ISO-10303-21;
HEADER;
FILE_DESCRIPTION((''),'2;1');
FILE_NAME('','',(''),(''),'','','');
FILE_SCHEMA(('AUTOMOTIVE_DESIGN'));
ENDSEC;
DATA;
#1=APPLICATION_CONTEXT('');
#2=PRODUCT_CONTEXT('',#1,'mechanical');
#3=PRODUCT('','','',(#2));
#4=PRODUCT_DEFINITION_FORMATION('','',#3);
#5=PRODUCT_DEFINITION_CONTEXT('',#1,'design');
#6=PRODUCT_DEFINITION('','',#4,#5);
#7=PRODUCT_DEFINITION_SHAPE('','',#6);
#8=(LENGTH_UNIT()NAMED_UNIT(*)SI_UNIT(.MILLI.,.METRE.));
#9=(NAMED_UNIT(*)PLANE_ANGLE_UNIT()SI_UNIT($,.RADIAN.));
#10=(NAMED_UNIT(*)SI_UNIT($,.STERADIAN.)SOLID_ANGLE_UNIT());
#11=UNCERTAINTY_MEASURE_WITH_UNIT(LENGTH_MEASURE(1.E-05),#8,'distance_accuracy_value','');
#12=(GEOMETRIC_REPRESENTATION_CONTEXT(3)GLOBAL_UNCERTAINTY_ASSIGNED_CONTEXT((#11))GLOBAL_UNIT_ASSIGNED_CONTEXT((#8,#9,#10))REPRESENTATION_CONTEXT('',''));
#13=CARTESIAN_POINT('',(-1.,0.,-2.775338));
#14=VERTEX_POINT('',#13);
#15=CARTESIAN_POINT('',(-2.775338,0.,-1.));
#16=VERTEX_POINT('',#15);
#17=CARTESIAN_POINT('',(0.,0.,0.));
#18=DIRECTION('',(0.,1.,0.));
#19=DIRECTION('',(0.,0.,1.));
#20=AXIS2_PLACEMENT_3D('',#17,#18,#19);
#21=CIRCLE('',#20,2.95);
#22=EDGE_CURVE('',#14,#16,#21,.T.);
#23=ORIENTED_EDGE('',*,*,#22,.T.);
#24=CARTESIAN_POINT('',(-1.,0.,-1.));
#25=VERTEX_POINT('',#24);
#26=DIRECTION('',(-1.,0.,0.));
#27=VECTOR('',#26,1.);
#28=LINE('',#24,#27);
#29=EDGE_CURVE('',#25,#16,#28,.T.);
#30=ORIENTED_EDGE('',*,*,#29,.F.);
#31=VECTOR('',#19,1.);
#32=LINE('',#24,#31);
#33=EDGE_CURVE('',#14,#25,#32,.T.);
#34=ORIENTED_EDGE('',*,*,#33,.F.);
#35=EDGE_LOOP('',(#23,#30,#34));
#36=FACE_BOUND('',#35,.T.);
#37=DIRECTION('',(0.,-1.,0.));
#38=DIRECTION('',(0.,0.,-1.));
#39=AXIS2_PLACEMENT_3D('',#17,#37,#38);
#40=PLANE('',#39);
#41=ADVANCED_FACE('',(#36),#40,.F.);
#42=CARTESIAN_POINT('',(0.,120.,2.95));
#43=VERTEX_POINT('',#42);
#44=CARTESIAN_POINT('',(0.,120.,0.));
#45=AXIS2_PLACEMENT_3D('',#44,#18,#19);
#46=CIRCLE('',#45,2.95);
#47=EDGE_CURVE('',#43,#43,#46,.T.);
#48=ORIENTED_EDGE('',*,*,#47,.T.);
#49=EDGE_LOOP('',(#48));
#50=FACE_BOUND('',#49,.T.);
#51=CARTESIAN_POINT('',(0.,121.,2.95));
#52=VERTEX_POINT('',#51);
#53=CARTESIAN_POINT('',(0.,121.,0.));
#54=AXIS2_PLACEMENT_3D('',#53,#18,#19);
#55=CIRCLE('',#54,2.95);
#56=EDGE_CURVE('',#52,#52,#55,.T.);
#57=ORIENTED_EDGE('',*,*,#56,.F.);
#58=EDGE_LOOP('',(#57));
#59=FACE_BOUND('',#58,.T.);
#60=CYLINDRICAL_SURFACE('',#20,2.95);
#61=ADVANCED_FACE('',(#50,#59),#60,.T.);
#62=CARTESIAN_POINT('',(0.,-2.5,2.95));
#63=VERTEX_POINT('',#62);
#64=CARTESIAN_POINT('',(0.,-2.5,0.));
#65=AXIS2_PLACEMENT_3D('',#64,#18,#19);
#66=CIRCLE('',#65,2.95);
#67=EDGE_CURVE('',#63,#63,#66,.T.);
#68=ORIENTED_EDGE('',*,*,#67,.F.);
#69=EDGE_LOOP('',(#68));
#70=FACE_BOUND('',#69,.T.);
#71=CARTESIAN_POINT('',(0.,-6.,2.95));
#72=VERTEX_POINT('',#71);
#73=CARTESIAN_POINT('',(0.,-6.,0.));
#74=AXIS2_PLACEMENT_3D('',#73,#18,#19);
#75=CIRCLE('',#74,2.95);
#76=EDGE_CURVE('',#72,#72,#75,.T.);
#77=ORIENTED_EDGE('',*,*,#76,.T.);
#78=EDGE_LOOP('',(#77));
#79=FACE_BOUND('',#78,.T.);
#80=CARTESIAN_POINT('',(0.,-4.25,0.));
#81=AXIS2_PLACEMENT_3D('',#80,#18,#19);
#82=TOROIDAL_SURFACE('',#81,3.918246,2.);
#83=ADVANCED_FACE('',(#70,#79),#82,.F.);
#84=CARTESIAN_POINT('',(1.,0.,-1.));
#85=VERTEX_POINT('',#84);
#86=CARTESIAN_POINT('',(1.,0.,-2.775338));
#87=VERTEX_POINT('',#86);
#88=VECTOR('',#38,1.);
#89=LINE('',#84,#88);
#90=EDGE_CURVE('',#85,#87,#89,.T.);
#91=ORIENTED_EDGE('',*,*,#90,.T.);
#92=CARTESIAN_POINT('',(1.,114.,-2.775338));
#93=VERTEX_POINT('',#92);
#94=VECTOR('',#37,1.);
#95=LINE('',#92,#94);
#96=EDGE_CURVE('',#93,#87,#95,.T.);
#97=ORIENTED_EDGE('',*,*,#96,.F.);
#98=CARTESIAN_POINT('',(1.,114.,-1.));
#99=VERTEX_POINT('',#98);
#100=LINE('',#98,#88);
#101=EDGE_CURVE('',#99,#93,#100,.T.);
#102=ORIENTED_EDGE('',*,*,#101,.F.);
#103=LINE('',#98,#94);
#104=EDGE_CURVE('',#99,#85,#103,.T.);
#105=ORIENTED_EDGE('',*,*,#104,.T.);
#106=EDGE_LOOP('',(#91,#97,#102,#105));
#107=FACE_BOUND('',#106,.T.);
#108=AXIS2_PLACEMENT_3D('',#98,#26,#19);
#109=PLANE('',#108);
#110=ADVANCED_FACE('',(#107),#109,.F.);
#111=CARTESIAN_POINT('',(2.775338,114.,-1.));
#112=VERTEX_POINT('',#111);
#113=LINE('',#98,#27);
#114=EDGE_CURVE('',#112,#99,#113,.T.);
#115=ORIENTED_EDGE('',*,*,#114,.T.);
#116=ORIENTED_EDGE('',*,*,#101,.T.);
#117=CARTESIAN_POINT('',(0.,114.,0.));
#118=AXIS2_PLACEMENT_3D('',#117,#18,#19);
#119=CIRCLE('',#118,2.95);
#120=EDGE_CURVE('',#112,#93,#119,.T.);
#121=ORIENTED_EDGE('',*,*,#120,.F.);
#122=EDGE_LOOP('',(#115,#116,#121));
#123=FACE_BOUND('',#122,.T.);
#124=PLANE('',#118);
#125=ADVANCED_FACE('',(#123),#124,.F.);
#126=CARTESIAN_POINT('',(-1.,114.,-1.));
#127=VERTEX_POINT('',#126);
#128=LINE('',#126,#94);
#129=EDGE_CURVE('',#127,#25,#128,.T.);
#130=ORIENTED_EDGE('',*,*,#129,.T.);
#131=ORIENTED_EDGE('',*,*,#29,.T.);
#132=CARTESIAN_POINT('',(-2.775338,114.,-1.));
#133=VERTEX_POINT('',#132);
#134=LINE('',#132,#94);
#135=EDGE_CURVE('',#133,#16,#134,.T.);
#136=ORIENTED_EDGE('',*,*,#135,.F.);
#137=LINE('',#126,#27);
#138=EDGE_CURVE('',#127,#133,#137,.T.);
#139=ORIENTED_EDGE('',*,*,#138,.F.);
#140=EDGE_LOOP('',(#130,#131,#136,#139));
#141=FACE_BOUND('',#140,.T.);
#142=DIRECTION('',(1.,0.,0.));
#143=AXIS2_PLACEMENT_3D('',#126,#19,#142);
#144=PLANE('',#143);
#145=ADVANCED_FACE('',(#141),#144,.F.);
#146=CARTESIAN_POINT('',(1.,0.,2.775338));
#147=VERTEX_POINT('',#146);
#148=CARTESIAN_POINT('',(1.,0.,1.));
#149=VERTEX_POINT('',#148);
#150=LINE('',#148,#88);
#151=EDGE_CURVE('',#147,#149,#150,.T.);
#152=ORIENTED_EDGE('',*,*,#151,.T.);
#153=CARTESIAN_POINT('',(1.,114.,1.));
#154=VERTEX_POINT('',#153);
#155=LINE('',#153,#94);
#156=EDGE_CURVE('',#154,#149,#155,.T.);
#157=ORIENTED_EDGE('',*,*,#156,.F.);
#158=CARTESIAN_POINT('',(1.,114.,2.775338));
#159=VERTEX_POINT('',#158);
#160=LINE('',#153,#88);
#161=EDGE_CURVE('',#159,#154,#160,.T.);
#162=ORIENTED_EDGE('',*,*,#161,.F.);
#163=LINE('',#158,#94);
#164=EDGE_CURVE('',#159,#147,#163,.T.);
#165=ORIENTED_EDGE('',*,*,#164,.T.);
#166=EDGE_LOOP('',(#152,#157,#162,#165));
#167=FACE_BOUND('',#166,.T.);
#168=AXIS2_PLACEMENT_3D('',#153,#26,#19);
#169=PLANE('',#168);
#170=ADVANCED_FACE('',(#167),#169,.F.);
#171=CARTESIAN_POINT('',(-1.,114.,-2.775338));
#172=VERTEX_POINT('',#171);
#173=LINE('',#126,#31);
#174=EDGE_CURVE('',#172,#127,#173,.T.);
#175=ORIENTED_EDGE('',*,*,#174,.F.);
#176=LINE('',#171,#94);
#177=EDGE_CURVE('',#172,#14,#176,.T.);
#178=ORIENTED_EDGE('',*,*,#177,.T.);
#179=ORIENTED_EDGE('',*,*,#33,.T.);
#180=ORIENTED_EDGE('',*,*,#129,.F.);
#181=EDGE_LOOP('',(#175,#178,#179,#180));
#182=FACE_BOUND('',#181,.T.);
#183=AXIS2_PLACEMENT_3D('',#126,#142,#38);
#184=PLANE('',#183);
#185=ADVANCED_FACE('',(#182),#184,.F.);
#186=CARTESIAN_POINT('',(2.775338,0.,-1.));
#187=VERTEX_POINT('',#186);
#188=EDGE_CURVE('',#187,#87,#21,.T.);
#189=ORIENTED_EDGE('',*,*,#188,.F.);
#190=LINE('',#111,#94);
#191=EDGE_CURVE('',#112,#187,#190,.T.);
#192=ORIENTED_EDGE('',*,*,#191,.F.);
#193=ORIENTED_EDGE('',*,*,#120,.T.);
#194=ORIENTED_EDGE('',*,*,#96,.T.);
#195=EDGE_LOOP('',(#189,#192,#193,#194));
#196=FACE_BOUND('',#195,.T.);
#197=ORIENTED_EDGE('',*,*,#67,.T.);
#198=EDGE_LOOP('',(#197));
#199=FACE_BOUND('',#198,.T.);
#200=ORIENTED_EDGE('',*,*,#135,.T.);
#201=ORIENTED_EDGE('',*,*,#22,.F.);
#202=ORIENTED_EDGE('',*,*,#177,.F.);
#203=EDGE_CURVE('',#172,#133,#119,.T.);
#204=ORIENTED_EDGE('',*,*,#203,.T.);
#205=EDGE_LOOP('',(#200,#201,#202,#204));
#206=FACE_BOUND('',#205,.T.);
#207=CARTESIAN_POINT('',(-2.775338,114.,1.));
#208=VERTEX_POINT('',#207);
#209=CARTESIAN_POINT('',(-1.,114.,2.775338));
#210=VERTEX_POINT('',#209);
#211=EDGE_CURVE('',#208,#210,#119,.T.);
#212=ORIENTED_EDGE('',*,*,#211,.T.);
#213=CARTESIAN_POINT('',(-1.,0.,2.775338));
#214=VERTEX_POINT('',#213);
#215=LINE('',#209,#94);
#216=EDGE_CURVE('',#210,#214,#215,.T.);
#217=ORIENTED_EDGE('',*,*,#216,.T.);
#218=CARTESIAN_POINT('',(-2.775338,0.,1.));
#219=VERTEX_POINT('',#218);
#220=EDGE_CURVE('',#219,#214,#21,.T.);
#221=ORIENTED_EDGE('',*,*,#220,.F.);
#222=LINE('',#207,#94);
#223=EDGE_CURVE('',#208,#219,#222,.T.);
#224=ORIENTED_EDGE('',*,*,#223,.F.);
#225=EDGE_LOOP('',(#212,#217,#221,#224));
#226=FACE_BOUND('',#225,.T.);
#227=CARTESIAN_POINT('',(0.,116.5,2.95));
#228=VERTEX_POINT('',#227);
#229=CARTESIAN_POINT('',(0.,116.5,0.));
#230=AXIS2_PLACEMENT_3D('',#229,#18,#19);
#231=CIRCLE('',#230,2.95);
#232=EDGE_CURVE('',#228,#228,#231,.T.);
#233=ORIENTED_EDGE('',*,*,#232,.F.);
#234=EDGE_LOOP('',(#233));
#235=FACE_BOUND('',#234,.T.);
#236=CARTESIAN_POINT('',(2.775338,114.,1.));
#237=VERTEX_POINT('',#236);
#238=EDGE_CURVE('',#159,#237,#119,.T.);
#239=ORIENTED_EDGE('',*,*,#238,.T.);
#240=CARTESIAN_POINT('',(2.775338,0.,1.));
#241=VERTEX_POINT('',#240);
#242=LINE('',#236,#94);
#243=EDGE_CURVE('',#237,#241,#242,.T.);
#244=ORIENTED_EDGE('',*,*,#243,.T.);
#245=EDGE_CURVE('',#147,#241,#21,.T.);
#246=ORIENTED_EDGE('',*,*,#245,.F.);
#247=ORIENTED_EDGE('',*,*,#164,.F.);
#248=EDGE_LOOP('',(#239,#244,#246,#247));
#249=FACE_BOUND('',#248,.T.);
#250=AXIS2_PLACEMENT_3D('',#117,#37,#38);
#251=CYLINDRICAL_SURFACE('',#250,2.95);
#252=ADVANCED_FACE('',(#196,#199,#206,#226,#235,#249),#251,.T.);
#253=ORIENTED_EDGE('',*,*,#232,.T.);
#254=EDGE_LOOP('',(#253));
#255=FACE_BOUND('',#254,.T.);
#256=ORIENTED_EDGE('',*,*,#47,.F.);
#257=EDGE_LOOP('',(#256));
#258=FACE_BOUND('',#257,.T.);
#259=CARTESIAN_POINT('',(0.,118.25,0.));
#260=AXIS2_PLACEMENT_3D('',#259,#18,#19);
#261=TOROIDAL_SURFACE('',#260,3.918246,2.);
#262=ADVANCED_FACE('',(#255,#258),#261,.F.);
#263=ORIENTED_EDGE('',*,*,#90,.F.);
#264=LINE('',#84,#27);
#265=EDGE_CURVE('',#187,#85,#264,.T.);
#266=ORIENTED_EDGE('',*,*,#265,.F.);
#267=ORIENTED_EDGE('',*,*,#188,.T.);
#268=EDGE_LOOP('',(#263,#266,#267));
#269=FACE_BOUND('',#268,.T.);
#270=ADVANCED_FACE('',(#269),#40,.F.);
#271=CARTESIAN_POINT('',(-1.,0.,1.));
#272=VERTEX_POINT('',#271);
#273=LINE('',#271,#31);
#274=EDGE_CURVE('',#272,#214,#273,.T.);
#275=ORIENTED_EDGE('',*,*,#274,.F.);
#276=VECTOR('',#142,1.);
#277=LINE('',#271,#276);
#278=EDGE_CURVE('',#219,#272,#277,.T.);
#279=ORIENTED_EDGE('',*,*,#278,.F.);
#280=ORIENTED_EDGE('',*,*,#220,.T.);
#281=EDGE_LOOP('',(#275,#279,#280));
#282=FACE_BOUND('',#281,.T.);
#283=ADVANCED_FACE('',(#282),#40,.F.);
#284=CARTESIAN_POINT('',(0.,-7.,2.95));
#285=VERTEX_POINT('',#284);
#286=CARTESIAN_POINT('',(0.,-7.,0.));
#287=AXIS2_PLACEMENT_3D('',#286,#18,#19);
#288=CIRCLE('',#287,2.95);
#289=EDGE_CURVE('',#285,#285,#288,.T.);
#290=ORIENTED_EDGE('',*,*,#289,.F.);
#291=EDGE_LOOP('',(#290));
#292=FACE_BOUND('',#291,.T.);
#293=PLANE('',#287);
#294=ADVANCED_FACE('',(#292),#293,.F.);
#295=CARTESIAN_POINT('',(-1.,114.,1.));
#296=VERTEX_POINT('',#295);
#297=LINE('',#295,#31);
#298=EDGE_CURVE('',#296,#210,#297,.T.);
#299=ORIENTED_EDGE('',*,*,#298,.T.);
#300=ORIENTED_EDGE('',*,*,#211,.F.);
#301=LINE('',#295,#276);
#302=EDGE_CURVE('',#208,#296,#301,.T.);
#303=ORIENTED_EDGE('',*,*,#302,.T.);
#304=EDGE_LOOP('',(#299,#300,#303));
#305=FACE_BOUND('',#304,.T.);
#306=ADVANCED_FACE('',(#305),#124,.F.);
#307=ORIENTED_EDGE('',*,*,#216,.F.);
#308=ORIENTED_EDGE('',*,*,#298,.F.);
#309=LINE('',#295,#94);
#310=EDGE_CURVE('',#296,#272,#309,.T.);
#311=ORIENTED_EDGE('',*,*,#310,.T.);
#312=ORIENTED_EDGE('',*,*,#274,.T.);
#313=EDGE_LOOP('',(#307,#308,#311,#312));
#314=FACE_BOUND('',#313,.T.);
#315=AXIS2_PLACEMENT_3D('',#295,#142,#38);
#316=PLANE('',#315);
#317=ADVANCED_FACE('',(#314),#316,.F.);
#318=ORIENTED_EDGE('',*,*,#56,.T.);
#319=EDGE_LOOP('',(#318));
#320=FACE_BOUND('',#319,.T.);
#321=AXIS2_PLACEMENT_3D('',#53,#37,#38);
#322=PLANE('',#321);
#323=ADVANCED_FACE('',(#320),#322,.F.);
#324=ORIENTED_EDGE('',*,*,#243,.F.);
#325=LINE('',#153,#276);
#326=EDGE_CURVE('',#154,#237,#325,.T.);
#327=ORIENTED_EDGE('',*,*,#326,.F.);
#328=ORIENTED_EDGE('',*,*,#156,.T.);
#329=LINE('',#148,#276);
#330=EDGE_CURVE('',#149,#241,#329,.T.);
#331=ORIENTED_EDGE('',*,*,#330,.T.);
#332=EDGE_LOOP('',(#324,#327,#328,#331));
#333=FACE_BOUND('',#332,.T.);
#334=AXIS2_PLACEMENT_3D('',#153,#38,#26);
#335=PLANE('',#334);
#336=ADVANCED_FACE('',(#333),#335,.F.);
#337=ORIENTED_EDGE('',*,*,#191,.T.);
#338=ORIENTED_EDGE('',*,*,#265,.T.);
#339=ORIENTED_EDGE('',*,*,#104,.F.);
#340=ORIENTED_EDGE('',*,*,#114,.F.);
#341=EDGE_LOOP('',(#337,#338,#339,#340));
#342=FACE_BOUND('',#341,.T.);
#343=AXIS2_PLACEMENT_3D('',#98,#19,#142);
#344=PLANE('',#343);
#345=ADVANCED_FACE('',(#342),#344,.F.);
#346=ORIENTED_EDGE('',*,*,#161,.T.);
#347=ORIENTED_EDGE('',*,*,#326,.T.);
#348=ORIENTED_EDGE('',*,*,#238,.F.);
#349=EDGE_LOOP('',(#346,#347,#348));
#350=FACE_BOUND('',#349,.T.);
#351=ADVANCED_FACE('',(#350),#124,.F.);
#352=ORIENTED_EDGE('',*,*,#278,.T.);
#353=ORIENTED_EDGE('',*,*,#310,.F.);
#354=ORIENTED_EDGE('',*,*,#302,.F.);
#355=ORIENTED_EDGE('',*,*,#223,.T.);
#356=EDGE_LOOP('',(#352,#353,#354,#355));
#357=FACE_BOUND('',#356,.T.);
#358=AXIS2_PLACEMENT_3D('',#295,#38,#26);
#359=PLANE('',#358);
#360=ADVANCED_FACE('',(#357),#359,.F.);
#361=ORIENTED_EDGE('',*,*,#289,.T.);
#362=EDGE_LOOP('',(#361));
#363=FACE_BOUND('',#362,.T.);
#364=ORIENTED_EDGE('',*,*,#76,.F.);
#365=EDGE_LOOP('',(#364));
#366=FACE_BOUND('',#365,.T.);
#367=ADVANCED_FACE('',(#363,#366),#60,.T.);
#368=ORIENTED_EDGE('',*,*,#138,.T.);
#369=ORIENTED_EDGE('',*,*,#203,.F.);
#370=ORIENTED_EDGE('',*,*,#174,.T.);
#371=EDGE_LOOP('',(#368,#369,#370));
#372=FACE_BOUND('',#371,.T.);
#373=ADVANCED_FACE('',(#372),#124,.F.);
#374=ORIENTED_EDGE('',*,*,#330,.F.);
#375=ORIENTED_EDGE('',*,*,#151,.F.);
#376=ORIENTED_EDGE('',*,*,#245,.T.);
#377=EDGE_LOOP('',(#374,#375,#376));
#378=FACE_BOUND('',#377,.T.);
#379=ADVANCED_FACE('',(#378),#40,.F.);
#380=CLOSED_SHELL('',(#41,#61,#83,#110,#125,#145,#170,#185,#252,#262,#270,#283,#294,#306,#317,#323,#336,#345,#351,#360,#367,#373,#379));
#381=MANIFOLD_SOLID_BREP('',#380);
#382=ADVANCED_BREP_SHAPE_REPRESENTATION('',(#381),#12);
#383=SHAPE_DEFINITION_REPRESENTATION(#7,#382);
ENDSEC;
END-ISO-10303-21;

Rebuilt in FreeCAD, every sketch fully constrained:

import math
import FreeCAD as App
import Part
import Sketcher
from FreeCAD import Vector
Q = App.Units.Quantity

doc = App.newDocument("Part")
body = doc.addObject("PartDesign::Body", "Body")

sketch1 = body.newObject("Sketcher::SketchObject", "Sketch")
sketch1.AttachmentSupport = (doc.getObject("XZ_Plane"), [""])
sketch1.MapMode = "FlatFace"
sketch1.addGeometry([
    Part.LineSegment(Vector(1, -1, 0), Vector(1, -2.8, 0)),
    Part.ArcOfCircle(Part.Circle(Vector(0, 0, 0), Vector(0, 0, 1), 3), math.radians(-110), math.radians(-70)),
    Part.LineSegment(Vector(-1, -2.8, 0), Vector(-1, -1, 0)),
    Part.LineSegment(Vector(-1, -1, 0), Vector(-2.8, -1, 0)),
    Part.ArcOfCircle(Part.Circle(Vector(0, 0, 0), Vector(0, 0, 1), 3), math.radians(160), math.radians(200)),
    Part.LineSegment(Vector(-2.8, 1, 0), Vector(-1, 1, 0)),
    Part.LineSegment(Vector(-1, 1, 0), Vector(-1, 2.8, 0)),
    Part.ArcOfCircle(Part.Circle(Vector(0, 0, 0), Vector(0, 0, 1), 3), math.radians(70), math.radians(110)),
    Part.LineSegment(Vector(1, 2.8, 0), Vector(1, 1, 0)),
    Part.LineSegment(Vector(1, 1, 0), Vector(2.8, 1, 0)),
    Part.ArcOfCircle(Part.Circle(Vector(0, 0, 0), Vector(0, 0, 1), 3), math.radians(-20), math.radians(20)),
    Part.LineSegment(Vector(2.8, -1, 0), Vector(1, -1, 0)),
], False)
sketch1.addConstraint([
    Sketcher.Constraint("Coincident", 0, 2, 1, 2),
    Sketcher.Constraint("Coincident", 1, 1, 2, 1),
    Sketcher.Constraint("Coincident", 2, 2, 3, 1),
    Sketcher.Constraint("Coincident", 3, 2, 4, 2),
    Sketcher.Constraint("Coincident", 4, 1, 5, 1),
    Sketcher.Constraint("Coincident", 5, 2, 6, 1),
    Sketcher.Constraint("Coincident", 6, 2, 7, 2),
    Sketcher.Constraint("Coincident", 7, 1, 8, 1),
    Sketcher.Constraint("Coincident", 8, 2, 9, 1),
    Sketcher.Constraint("Coincident", 9, 2, 10, 2),
    Sketcher.Constraint("Coincident", 10, 1, 11, 1),
    Sketcher.Constraint("Coincident", 11, 2, 0, 1),
    Sketcher.Constraint("Vertical", 0),
    Sketcher.Constraint("Vertical", 2),
    Sketcher.Constraint("Horizontal", 3),
    Sketcher.Constraint("Horizontal", 5),
    Sketcher.Constraint("Vertical", 6),
    Sketcher.Constraint("Vertical", 8),
    Sketcher.Constraint("Horizontal", 9),
    Sketcher.Constraint("Horizontal", 11),
    Sketcher.Constraint("Coincident", 1, 3, -1, 1),
    Sketcher.Constraint("Coincident", 4, 3, -1, 1),
    Sketcher.Constraint("Coincident", 7, 3, -1, 1),
    Sketcher.Constraint("Coincident", 10, 3, -1, 1),
    Sketcher.Constraint("Equal", 1, 4),
    Sketcher.Constraint("Equal", 4, 7),
    Sketcher.Constraint("Equal", 7, 10),
    Sketcher.Constraint("Symmetric", 2, 2, 8, 2, -1, 1),
    Sketcher.Constraint("Symmetric", 5, 2, 11, 2, -1, 1),
    Sketcher.Constraint("Symmetric", 5, 2, 8, 2, -2),
    Sketcher.Constraint("Equal", 11, 0),
    Sketcher.Constraint("DistanceX", -1, 1, 0, 2, Q("1 mm")),
    Sketcher.Constraint("Radius", 1, Q("2.950003 mm")),
])
pad1 = body.newObject("PartDesign::Pad", "Pad")
pad1.Profile = sketch1
pad1.Length = 114
pad1.Reversed = True

sketch2 = body.newObject("Sketcher::SketchObject", "Sketch001")
sketch2.AttachmentSupport = (doc.getObject("YZ_Plane"), [""])
sketch2.MapMode = "FlatFace"
sketch2.addGeometry([
    Part.LineSegment(Vector(121, 0, 0), Vector(114, 0, 0)),
    Part.LineSegment(Vector(114, 0, 0), Vector(114, -3, 0)),
    Part.LineSegment(Vector(114, -3, 0), Vector(116.5, -3, 0)),
    Part.ArcOfCircle(Part.Circle(Vector(118.2, -3.9, 0), Vector(0, 0, 1), 2), math.radians(29), math.radians(151)),
    Part.LineSegment(Vector(120, -3, 0), Vector(121, -3, 0)),
    Part.LineSegment(Vector(121, -3, 0), Vector(121, 0, 0)),
    Part.LineSegment(Vector(0, 0, 0), Vector(-7, 0, 0)),
    Part.LineSegment(Vector(-7, 0, 0), Vector(-7, -3, 0)),
    Part.LineSegment(Vector(-7, -3, 0), Vector(-6, -3, 0)),
    Part.ArcOfCircle(Part.Circle(Vector(-4.2, -3.9, 0), Vector(0, 0, 1), 2), math.radians(29), math.radians(151)),
    Part.LineSegment(Vector(-2.5, -3, 0), Vector(0, -3, 0)),
    Part.LineSegment(Vector(0, -3, 0), Vector(0, 0, 0)),
], False)
sketch2.addConstraint([
    Sketcher.Constraint("Coincident", 0, 2, 1, 1),
    Sketcher.Constraint("Coincident", 1, 2, 2, 1),
    Sketcher.Constraint("Coincident", 2, 2, 3, 2),
    Sketcher.Constraint("Coincident", 3, 1, 4, 1),
    Sketcher.Constraint("Coincident", 4, 2, 5, 1),
    Sketcher.Constraint("Coincident", 5, 2, 0, 1),
    Sketcher.Constraint("Coincident", 6, 2, 7, 1),
    Sketcher.Constraint("Coincident", 7, 2, 8, 1),
    Sketcher.Constraint("Coincident", 8, 2, 9, 2),
    Sketcher.Constraint("Coincident", 9, 1, 10, 1),
    Sketcher.Constraint("Coincident", 10, 2, 11, 1),
    Sketcher.Constraint("Coincident", 11, 2, 6, 1),
    Sketcher.Constraint("Horizontal", 0),
    Sketcher.Constraint("Vertical", 1),
    Sketcher.Constraint("Horizontal", 2),
    Sketcher.Constraint("Horizontal", 4),
    Sketcher.Constraint("Vertical", 5),
    Sketcher.Constraint("Horizontal", 6),
    Sketcher.Constraint("Vertical", 7),
    Sketcher.Constraint("Horizontal", 8),
    Sketcher.Constraint("Horizontal", 10),
    Sketcher.Constraint("Vertical", 11),
    Sketcher.Constraint("Coincident", 11, 2, -1, 1),
    Sketcher.Constraint("Equal", 3, 9),
    Sketcher.Constraint("PointOnObject", 0, 2, -1),
    Sketcher.Constraint("Horizontal", 3, 3, 9, 3),
    Sketcher.Constraint("Horizontal", 2, 2, 3, 1),
    Sketcher.Constraint("Horizontal", 4, 2, 7, 2),
    Sketcher.Constraint("Horizontal", 8, 2, 9, 1),
    Sketcher.Constraint("Equal", 0, 6),
    Sketcher.Constraint("Equal", 4, 8),
    Sketcher.Constraint("Radius", 3, Q("2 mm")),
    Sketcher.Constraint("DistanceX", 0, 2, 0, 1, Q("7 mm")),
    Sketcher.Constraint("DistanceX", 4, 1, 4, 2, Q("1 mm")),
    Sketcher.Constraint("DistanceX", 2, 1, 2, 2, Q("2.5 mm")),
    Sketcher.Constraint("DistanceX", -1, 1, 0, 2, Q("114 mm")),
    Sketcher.Constraint("DistanceY", 1, 2, 1, 1, Q("2.95 mm")),
])
revolution = body.newObject("PartDesign::Revolution", "Revolution")
revolution.Profile = sketch2
revolution.ReferenceAxis = (sketch2, ["H_Axis"])
revolution.Angle = 360

doc.recompute()
